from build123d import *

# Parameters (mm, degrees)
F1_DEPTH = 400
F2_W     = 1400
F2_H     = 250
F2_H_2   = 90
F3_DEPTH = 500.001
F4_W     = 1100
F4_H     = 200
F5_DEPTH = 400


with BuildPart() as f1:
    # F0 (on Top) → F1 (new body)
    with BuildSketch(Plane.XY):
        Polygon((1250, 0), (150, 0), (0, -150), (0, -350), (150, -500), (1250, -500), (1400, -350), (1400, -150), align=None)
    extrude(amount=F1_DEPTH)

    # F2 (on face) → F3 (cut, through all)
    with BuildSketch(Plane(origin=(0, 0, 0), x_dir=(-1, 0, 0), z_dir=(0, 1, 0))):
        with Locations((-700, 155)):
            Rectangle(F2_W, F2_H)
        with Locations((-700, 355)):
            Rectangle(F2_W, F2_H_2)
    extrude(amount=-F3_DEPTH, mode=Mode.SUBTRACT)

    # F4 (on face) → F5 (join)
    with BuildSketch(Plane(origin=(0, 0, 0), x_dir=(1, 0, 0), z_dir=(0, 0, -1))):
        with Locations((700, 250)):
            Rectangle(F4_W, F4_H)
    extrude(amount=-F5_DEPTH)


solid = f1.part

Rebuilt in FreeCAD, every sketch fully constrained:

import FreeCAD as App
import Part
import Sketcher


def add_polygon(sketch, points):
    """Adds a closed chain of lines whose ends are joined by coincident constraints."""
    first, n = sketch.GeometryCount, len(points)
    for a, b in zip(points, points[1:] + points[:1]):
        sketch.addGeometry(Part.LineSegment(App.Vector(*a, 0), App.Vector(*b, 0)), False)
    for i in range(n):
        sketch.addConstraint(Sketcher.Constraint("Coincident", first + i, 2, first + (i + 1) % n, 1))

doc = App.newDocument("Part")
body = doc.addObject("PartDesign::Body", "Body")
body.AllowCompound = True

# Sketch on XY plane
sketch1 = body.newObject("Sketcher::SketchObject", "Sketch")
sketch1.AttachmentSupport = (doc.getObject("XY_Plane"), [""])
sketch1.MapMode = "FlatFace"
add_polygon(sketch1, [(1250, 0), (150, 0), (0, -150), (0, -350), (150, -500), (1250, -500), (1400, -350), (1400, -150)])  # lines 0-7
sketch1.addConstraint([
    Sketcher.Constraint("Horizontal", 0),
    Sketcher.Constraint("Vertical", 2),
    Sketcher.Constraint("Horizontal", 4),
    Sketcher.Constraint("Vertical", 6),
    Sketcher.Constraint("PointOnObject", 0, 2, -1),
    Sketcher.Constraint("PointOnObject", 1, 2, -2),
    Sketcher.Constraint("Perpendicular", 1, 3),
    Sketcher.Constraint("Perpendicular", 3, 5),
    Sketcher.Constraint("Perpendicular", 5, 7),
    Sketcher.Constraint("Horizontal", 2, 2, 5, 2),
    Sketcher.Constraint("Horizontal", 1, 2, 6, 2),
    Sketcher.Constraint("Vertical", 0, 2, 3, 2),
    Sketcher.Constraint("Vertical", 4, 2, 7, 2),
    Sketcher.Constraint("DistanceX", 0, 2, 0, 1, 1100.0),
    Sketcher.Constraint("DistanceY", 2, 2, 2, 1, 200.0),
    Sketcher.Constraint("DistanceX", -1, 1, 0, 2, 150.0),
])
pad1 = body.newObject("PartDesign::Pad", "Pad")
pad1.Profile = sketch1
pad1.Length = 400

# Sketch on XZ plane
sketch2 = body.newObject("Sketcher::SketchObject", "Sketch001")
sketch2.AttachmentSupport = (doc.getObject("XZ_Plane"), [""])
sketch2.MapMode = "FlatFace"
add_polygon(sketch2, [(1400, 280), (1400, 30), (0, 30), (0, 280)])  # lines 0-3
add_polygon(sketch2, [(1400, 400), (1400, 310), (0, 310), (0, 400)])  # lines 4-7
sketch2.addConstraint([
    Sketcher.Constraint("Vertical", 0),
    Sketcher.Constraint("Horizontal", 1),
    Sketcher.Constraint("Vertical", 2),
    Sketcher.Constraint("Horizontal", 3),
    Sketcher.Constraint("Vertical", 4),
    Sketcher.Constraint("Horizontal", 5),
    Sketcher.Constraint("Vertical", 6),
    Sketcher.Constraint("Horizontal", 7),
    Sketcher.Constraint("PointOnObject", 1, 2, -2),
    Sketcher.Constraint("PointOnObject", 5, 2, -2),
    Sketcher.Constraint("Vertical", 3, 2, 4, 2),
    Sketcher.Constraint("DistanceX", 1, 2, 1, 1, 1400.0),
    Sketcher.Constraint("DistanceY", 0, 2, 0, 1, 250.0),
    Sketcher.Constraint("DistanceY", 4, 2, 4, 1, 90.0),
    Sketcher.Constraint("DistanceY", -1, 1, 0, 2, 30.0),
    Sketcher.Constraint("DistanceY", -1, 1, 4, 2, 310.0),
])
pocket1 = body.newObject("PartDesign::Pocket", "Pocket")
pocket1.Profile = sketch2
pocket1.Type = "ThroughAll"
pocket1.Reversed = True

# Sketch on XY plane
sketch3 = body.newObject("Sketcher::SketchObject", "Sketch002")
sketch3.AttachmentSupport = (doc.getObject("XY_Plane"), [""])
sketch3.MapMode = "FlatFace"
add_polygon(sketch3, [(150, -350), (150, -150), (1250, -150), (1250, -350)])  # lines 0-3
sketch3.addConstraint([
    Sketcher.Constraint("Vertical", 0),
    Sketcher.Constraint("Horizontal", 1),
    Sketcher.Constraint("Vertical", 2),
    Sketcher.Constraint("Horizontal", 3),
    Sketcher.Constraint("DistanceX", 1, 1, 1, 2, 1100.0),
    Sketcher.Constraint("DistanceY", 0, 1, 0, 2, 200.0),
    Sketcher.Constraint("DistanceX", -1, 1, 0, 2, 150.0),
    Sketcher.Constraint("DistanceY", 0, 2, -1, 1, 150.0),
])
pad2 = body.newObject("PartDesign::Pad", "Pad001")
pad2.Profile = sketch3
pad2.Length = 400

doc.recompute()
